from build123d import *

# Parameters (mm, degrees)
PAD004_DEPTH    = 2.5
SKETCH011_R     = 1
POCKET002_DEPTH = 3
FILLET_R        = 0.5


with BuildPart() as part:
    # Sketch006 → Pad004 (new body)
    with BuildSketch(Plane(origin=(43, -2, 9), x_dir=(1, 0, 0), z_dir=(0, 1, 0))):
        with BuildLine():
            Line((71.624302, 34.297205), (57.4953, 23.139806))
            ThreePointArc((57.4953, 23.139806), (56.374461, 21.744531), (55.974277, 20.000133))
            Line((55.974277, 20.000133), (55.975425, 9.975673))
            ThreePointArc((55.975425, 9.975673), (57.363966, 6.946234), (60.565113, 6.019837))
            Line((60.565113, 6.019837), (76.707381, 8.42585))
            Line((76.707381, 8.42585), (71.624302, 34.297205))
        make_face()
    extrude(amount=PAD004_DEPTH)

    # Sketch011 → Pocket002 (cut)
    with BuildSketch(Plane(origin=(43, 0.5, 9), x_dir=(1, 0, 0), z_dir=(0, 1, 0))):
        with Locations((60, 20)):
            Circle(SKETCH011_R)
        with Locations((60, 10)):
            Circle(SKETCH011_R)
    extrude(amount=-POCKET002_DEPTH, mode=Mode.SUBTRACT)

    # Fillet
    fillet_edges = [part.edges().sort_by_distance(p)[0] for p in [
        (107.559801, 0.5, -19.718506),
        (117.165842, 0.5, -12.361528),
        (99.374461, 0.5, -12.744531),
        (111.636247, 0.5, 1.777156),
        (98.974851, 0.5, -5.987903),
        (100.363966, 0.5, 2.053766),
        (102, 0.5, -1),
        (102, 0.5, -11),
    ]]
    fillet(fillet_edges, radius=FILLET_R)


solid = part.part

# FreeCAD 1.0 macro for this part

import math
import FreeCAD as App
import Part
import Sketcher

V = App.Vector


def edges_at(feature, points):
    """Names of the edges that pass closest to the given points."""
    edges = feature.Shape.Edges
    near = lambda p: min(range(len(edges)), key=lambda i: edges[i].distToShape(Part.Vertex(*p))[0])
    return sorted({f"Edge{near(p) + 1}" for p in points})

doc = App.newDocument("Part")
params = doc.addObject("Spreadsheet::Sheet", "Params")
for row, (alias, value) in enumerate([
    ("sketch1_radius", "4 mm"),
    ("pad1_length", "2.5 mm"),
    ("sketch2_diameter", "2 mm"),
    ("pocket1_length", "3 mm"),
    ("fillet_radius", "0.5 mm"),
], start=1):
    params.set(f"A{row}", alias)
    params.set(f"B{row}", "=" + value)
    params.setAlias(f"B{row}", alias)

body = doc.addObject("PartDesign::Body", "Body")

sketch1 = doc.addObject("Sketcher::SketchObject", "Sketch")
body.addObject(sketch1)
sketch1.AttachmentSupport = (doc.XZ_Plane, [""])
sketch1.MapMode = "FlatFace"
sketch1.AttachmentOffset = App.Placement(V(0, 0, 2), App.Rotation())
sketch1.addGeometry(Part.LineSegment(V(114.624302, -25.297205, 0), V(100.4953, -14.139806, 0)), False)
sketch1.addGeometry(Part.ArcOfCircle(Part.Circle(V(102.974274, -11.000592, 0), V(0, 0, 1), 3.999997), math.radians(179.993421), math.radians(231.702564)), False)
sketch1.addGeometry(Part.LineSegment(V(98.974277, -11.000133, 0), V(98.975425, -0.975673, 0)), False)
sketch1.addGeometry(Part.ArcOfCircle(Part.Circle(V(102.975425, -0.976132, 0), V(0, 0, 1), 4), math.radians(81.522449), math.radians(179.993422)), False)
sketch1.addGeometry(Part.LineSegment(V(103.565113, 2.980163, 0), V(119.707381, 0.57415, 0)), False)
sketch1.addGeometry(Part.LineSegment(V(119.707381, 0.57415, 0), V(114.624302, -25.297205, 0)), False)
sketch1.addConstraint(Sketcher.Constraint("Coincident", 0, 2, 1, 2))
sketch1.addConstraint(Sketcher.Constraint("Coincident", 1, 1, 2, 1))
sketch1.addConstraint(Sketcher.Constraint("Coincident", 2, 2, 3, 2))
sketch1.addConstraint(Sketcher.Constraint("Coincident", 3, 1, 4, 1))
sketch1.addConstraint(Sketcher.Constraint("Coincident", 4, 2, 5, 1))
sketch1.addConstraint(Sketcher.Constraint("Coincident", 5, 2, 0, 1))
sketch1.addConstraint(Sketcher.Constraint("Radius", 3, 4.0))
sketch1.addConstraint(Sketcher.Constraint("Radius", 1, 3.999997))
sketch1.addConstraint(Sketcher.Constraint("DistanceY", 1, 1, 3, 3, 10.024001))
sketch1.addConstraint(Sketcher.Constraint("DistanceX", -1, 1, 0, 2, 100.4953))
sketch1.addConstraint(Sketcher.Constraint("DistanceX", -1, 1, 5, 2, 114.624302))
sketch1.addConstraint(Sketcher.Constraint("DistanceY", 5, 2, 0, 2, 11.157399))
sketch1.addConstraint(Sketcher.Constraint("Distance", 2, 10.02446))
sketch1.addConstraint(Sketcher.Constraint("Distance", 4, 16.320592))
sketch1.addConstraint(Sketcher.Constraint("DistanceX", -1, 1, 4, 2, 119.707381))
sketch1.addConstraint(Sketcher.Constraint("DistanceY", -1, 1, 4, 2, 0.57415))
sketch1.addConstraint(Sketcher.Constraint("DistanceX", 1, 3, 3, 3, 0.001152))
sketch1.addConstraint(Sketcher.Constraint("DistanceY", 1, 3, 3, 3, 10.02446))
sketch1.addConstraint(Sketcher.Constraint("DistanceX", 1, 3, 3, 1, 0.590839))
sketch1.addConstraint(Sketcher.Constraint("DistanceY", 0, 2, 3, 1, 17.119969))
sketch1.setExpression("Constraints[6]", "Params.sketch1_radius")
pad1 = doc.addObject("PartDesign::Pad", "Pad")
body.addObject(pad1)
pad1.Profile = sketch1
pad1.setExpression("Length", "Params.pad1_length")
pad1.Reversed = True

sketch2 = doc.addObject("Sketcher::SketchObject", "Sketch001")
body.addObject(sketch2)
sketch2.AttachmentSupport = (doc.XZ_Plane, [""])
sketch2.MapMode = "FlatFace"
sketch2.AttachmentOffset = App.Placement(V(0, 0, -0.5), App.Rotation())
sketch2.addGeometry(Part.Circle(V(103, -11, 0), V(0, 0, 1), 1), False)
sketch2.addGeometry(Part.Circle(V(103, -1, 0), V(0, 0, 1), 1), False)
sketch2.addConstraint(Sketcher.Constraint("Equal", 0, 1))
sketch2.addConstraint(Sketcher.Constraint("Vertical", 0, 3, 1, 3))
sketch2.addConstraint(Sketcher.Constraint("Diameter", 0, 2.0))
sketch2.addConstraint(Sketcher.Constraint("DistanceX", -1, 1, 0, 3, 103.0))
sketch2.addConstraint(Sketcher.Constraint("DistanceY", 0, 3, -1, 1, 11.0))
sketch2.addConstraint(Sketcher.Constraint("DistanceY", 1, 3, -1, 1, 1.0))
sketch2.setExpression("Constraints[2]", "Params.sketch2_diameter")
pocket1 = doc.addObject("PartDesign::Pocket", "Pocket")
body.addObject(pocket1)
pocket1.Profile = sketch2
pocket1.setExpression("Length", "Params.pocket1_length")
pocket1.Reversed = True
doc.recompute()

fillet = doc.addObject("PartDesign::Fillet", "Fillet")
body.addObject(fillet)
fillet.Base = (pocket1, edges_at(pocket1, [
    (107.56, 0.5, -19.719),
    (117.166, 0.5, -12.362),
    (99.374, 0.5, -12.745),
    (111.636, 0.5, 1.777),
    (98.975, 0.5, -5.988),
    (100.364, 0.5, 2.054),
    (102, 0.5, -1),
    (102, 0.5, -11),
]))
fillet.setExpression("Radius", "Params.fillet_radius")

doc.recompute()
